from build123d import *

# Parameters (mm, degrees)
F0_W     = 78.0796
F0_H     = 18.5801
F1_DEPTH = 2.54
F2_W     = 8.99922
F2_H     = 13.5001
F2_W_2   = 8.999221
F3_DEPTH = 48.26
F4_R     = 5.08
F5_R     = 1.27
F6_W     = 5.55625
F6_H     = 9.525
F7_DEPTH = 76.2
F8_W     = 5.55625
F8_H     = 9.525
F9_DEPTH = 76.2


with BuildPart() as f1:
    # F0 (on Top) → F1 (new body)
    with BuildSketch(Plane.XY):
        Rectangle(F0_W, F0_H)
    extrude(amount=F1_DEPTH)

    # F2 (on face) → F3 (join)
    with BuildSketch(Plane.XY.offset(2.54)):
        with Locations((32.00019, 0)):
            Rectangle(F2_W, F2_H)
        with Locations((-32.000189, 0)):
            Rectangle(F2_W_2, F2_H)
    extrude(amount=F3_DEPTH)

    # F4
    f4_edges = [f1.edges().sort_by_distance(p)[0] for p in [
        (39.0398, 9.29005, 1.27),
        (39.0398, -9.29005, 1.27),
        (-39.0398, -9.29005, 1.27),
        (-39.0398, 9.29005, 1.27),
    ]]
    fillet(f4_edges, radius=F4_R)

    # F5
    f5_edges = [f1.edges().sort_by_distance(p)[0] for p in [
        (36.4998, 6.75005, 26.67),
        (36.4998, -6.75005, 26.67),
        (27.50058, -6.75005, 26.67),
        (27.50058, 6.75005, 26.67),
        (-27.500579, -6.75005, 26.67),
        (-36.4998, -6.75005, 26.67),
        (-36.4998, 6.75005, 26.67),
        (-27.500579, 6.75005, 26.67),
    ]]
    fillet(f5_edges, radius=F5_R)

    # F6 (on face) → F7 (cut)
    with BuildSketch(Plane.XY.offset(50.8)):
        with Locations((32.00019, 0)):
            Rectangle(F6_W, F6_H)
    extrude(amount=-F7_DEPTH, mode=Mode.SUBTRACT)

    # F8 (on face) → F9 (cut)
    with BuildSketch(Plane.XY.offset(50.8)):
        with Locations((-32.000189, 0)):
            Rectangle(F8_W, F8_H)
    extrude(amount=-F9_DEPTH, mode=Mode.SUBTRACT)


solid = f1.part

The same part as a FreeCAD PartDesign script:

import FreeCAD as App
import Part
import Sketcher

V = App.Vector
Q = App.Units.Quantity


def edges_at(feature, points):
    """Names of the edges that pass closest to the given points."""
    edges = feature.Shape.Edges
    near = lambda p: min(range(len(edges)), key=lambda i: edges[i].distToShape(Part.Vertex(*p))[0])
    return sorted({f"Edge{near(p) + 1}" for p in points})


def add_polygon(sketch, points):
    """Adds a closed chain of lines whose ends are joined by coincident constraints."""
    first, n = sketch.GeometryCount, len(points)
    for a, b in zip(points, points[1:] + points[:1]):
        sketch.addGeometry(Part.LineSegment(App.Vector(*a, 0), App.Vector(*b, 0)), False)
    for i in range(n):
        sketch.addConstraint(Sketcher.Constraint("Coincident", first + i, 2, first + (i + 1) % n, 1))

doc = App.newDocument("Part")
body = doc.addObject("PartDesign::Body", "Body")

# Sketch on XY plane
sketch1 = doc.addObject("Sketcher::SketchObject", "Sketch")
body.addObject(sketch1)
sketch1.AttachmentSupport = (doc.XY_Plane, [""])
sketch1.MapMode = "FlatFace"
add_polygon(sketch1, [(-39, 9), (-39, -9), (39, -9), (39, 9)])  # lines 0-3
sketch1.addConstraint([
    Sketcher.Constraint("Vertical", 0),
    Sketcher.Constraint("Horizontal", 1),
    Sketcher.Constraint("Vertical", 2),
    Sketcher.Constraint("Horizontal", 3),
    Sketcher.Constraint("Symmetric", 0, 2, 2, 2, -1, 1),
    Sketcher.Constraint("DistanceX", 1, 1, 1, 2, Q("3.074 in")),
    Sketcher.Constraint("DistanceY", 0, 2, 0, 1, Q("0.7315 in")),
])
pad1 = doc.addObject("PartDesign::Pad", "Pad")
body.addObject(pad1)
pad1.Profile = sketch1
pad1.Length = Q("0.1 in")

# Sketch on XY plane
sketch2 = doc.addObject("Sketcher::SketchObject", "Sketch001")
body.addObject(sketch2)
sketch2.AttachmentSupport = (doc.XY_Plane, [""])
sketch2.MapMode = "FlatFace"
sketch2.AttachmentOffset = App.Placement(V(0, 0, 0.1 * 25.4), App.Rotation())
add_polygon(sketch2, [(28, 7), (28, -7), (36, -7), (36, 7)])  # lines 0-3
add_polygon(sketch2, [(-36, 7), (-36, -7), (-28, -7), (-28, 7)])  # lines 4-7
sketch2.addConstraint([
    Sketcher.Constraint("Vertical", 0),
    Sketcher.Constraint("Horizontal", 1),
    Sketcher.Constraint("Vertical", 2),
    Sketcher.Constraint("Horizontal", 3),
    Sketcher.Constraint("Vertical", 4),
    Sketcher.Constraint("Horizontal", 5),
    Sketcher.Constraint("Vertical", 6),
    Sketcher.Constraint("Horizontal", 7),
    Sketcher.Constraint("Symmetric", 2, 2, 4, 2, -1, 1),
    Sketcher.Constraint("Symmetric", 0, 2, 6, 2, -1, 1),
    Sketcher.Constraint("Horizontal", 1, 2, 4, 2),
    Sketcher.Constraint("DistanceX", 1, 1, 1, 2, Q("0.3543 in")),
    Sketcher.Constraint("DistanceY", 0, 2, 0, 1, Q("0.5315 in")),
    Sketcher.Constraint("DistanceX", -1, 1, 1, 2, Q("1.437 in")),
])
pad2 = doc.addObject("PartDesign::Pad", "Pad001")
body.addObject(pad2)
pad2.Profile = sketch2
pad2.Length = Q("1.9 in")
doc.recompute()

fillet = doc.addObject("PartDesign::Fillet", "Fillet")
body.addObject(fillet)
fillet.Base = (pad2, edges_at(pad2, [
    (39.04, 9.29, 1.27),
    (39.04, -9.29, 1.27),
    (-39.04, -9.29, 1.27),
    (-39.04, 9.29, 1.27),
]))
fillet.Radius = Q("0.2 in")
doc.recompute()

fillet2 = doc.addObject("PartDesign::Fillet", "Fillet001")
body.addObject(fillet2)
fillet2.Base = (fillet, edges_at(fillet, [
    (36.5, 6.75, 26.67),
    (36.5, -6.75, 26.67),
    (27.501, -6.75, 26.67),
    (27.501, 6.75, 26.67),
    (-27.501, -6.75, 26.67),
    (-36.5, -6.75, 26.67),
    (-36.5, 6.75, 26.67),
    (-27.501, 6.75, 26.67),
]))
fillet2.Radius = Q("0.05 in")

# Sketch on XY plane
sketch3 = doc.addObject("Sketcher::SketchObject", "Sketch002")
body.addObject(sketch3)
sketch3.AttachmentSupport = (doc.XY_Plane, [""])
sketch3.MapMode = "FlatFace"
sketch3.AttachmentOffset = App.Placement(V(0, 0, 2 * 25.4), App.Rotation())
add_polygon(sketch3, [(29, 5), (29, -5), (35, -5), (35, 5)])  # lines 0-3
sketch3.addConstraint([
    Sketcher.Constraint("Vertical", 0),
    Sketcher.Constraint("Horizontal", 1),
    Sketcher.Constraint("Vertical", 2),
    Sketcher.Constraint("Horizontal", 3),
    Sketcher.Constraint("DistanceX", 1, 1, 1, 2, Q("0.21875 in")),
    Sketcher.Constraint("DistanceY", 0, 2, 0, 1, Q("0.375 in")),
    Sketcher.Constraint("DistanceY", 0, 2, -1, 1, Q("0.1875 in")),
    Sketcher.Constraint("DistanceX", -1, 1, 0, 2, 29.222065),
])
pocket1 = doc.addObject("PartDesign::Pocket", "Pocket")
body.addObject(pocket1)
pocket1.Profile = sketch3
pocket1.Length = Q("3 in")

# Sketch on XY plane
sketch4 = doc.addObject("Sketcher::SketchObject", "Sketch003")
body.addObject(sketch4)
sketch4.AttachmentSupport = (doc.XY_Plane, [""])
sketch4.MapMode = "FlatFace"
sketch4.AttachmentOffset = App.Placement(V(0, 0, 2 * 25.4), App.Rotation())
add_polygon(sketch4, [(-35, 5), (-35, -5), (-29, -5), (-29, 5)])  # lines 0-3
sketch4.addConstraint([
    Sketcher.Constraint("Vertical", 0),
    Sketcher.Constraint("Horizontal", 1),
    Sketcher.Constraint("Vertical", 2),
    Sketcher.Constraint("Horizontal", 3),
    Sketcher.Constraint("DistanceX", 1, 1, 1, 2, Q("0.21875 in")),
    Sketcher.Constraint("DistanceY", 0, 2, 0, 1, Q("0.375 in")),
    Sketcher.Constraint("DistanceY", 0, 2, -1, 1, Q("0.1875 in")),
    Sketcher.Constraint("DistanceX", 0, 2, -1, 1, 34.778314),
])
pocket2 = doc.addObject("PartDesign::Pocket", "Pocket001")
body.addObject(pocket2)
pocket2.Profile = sketch4
pocket2.Length = Q("3 in")

doc.recompute()
